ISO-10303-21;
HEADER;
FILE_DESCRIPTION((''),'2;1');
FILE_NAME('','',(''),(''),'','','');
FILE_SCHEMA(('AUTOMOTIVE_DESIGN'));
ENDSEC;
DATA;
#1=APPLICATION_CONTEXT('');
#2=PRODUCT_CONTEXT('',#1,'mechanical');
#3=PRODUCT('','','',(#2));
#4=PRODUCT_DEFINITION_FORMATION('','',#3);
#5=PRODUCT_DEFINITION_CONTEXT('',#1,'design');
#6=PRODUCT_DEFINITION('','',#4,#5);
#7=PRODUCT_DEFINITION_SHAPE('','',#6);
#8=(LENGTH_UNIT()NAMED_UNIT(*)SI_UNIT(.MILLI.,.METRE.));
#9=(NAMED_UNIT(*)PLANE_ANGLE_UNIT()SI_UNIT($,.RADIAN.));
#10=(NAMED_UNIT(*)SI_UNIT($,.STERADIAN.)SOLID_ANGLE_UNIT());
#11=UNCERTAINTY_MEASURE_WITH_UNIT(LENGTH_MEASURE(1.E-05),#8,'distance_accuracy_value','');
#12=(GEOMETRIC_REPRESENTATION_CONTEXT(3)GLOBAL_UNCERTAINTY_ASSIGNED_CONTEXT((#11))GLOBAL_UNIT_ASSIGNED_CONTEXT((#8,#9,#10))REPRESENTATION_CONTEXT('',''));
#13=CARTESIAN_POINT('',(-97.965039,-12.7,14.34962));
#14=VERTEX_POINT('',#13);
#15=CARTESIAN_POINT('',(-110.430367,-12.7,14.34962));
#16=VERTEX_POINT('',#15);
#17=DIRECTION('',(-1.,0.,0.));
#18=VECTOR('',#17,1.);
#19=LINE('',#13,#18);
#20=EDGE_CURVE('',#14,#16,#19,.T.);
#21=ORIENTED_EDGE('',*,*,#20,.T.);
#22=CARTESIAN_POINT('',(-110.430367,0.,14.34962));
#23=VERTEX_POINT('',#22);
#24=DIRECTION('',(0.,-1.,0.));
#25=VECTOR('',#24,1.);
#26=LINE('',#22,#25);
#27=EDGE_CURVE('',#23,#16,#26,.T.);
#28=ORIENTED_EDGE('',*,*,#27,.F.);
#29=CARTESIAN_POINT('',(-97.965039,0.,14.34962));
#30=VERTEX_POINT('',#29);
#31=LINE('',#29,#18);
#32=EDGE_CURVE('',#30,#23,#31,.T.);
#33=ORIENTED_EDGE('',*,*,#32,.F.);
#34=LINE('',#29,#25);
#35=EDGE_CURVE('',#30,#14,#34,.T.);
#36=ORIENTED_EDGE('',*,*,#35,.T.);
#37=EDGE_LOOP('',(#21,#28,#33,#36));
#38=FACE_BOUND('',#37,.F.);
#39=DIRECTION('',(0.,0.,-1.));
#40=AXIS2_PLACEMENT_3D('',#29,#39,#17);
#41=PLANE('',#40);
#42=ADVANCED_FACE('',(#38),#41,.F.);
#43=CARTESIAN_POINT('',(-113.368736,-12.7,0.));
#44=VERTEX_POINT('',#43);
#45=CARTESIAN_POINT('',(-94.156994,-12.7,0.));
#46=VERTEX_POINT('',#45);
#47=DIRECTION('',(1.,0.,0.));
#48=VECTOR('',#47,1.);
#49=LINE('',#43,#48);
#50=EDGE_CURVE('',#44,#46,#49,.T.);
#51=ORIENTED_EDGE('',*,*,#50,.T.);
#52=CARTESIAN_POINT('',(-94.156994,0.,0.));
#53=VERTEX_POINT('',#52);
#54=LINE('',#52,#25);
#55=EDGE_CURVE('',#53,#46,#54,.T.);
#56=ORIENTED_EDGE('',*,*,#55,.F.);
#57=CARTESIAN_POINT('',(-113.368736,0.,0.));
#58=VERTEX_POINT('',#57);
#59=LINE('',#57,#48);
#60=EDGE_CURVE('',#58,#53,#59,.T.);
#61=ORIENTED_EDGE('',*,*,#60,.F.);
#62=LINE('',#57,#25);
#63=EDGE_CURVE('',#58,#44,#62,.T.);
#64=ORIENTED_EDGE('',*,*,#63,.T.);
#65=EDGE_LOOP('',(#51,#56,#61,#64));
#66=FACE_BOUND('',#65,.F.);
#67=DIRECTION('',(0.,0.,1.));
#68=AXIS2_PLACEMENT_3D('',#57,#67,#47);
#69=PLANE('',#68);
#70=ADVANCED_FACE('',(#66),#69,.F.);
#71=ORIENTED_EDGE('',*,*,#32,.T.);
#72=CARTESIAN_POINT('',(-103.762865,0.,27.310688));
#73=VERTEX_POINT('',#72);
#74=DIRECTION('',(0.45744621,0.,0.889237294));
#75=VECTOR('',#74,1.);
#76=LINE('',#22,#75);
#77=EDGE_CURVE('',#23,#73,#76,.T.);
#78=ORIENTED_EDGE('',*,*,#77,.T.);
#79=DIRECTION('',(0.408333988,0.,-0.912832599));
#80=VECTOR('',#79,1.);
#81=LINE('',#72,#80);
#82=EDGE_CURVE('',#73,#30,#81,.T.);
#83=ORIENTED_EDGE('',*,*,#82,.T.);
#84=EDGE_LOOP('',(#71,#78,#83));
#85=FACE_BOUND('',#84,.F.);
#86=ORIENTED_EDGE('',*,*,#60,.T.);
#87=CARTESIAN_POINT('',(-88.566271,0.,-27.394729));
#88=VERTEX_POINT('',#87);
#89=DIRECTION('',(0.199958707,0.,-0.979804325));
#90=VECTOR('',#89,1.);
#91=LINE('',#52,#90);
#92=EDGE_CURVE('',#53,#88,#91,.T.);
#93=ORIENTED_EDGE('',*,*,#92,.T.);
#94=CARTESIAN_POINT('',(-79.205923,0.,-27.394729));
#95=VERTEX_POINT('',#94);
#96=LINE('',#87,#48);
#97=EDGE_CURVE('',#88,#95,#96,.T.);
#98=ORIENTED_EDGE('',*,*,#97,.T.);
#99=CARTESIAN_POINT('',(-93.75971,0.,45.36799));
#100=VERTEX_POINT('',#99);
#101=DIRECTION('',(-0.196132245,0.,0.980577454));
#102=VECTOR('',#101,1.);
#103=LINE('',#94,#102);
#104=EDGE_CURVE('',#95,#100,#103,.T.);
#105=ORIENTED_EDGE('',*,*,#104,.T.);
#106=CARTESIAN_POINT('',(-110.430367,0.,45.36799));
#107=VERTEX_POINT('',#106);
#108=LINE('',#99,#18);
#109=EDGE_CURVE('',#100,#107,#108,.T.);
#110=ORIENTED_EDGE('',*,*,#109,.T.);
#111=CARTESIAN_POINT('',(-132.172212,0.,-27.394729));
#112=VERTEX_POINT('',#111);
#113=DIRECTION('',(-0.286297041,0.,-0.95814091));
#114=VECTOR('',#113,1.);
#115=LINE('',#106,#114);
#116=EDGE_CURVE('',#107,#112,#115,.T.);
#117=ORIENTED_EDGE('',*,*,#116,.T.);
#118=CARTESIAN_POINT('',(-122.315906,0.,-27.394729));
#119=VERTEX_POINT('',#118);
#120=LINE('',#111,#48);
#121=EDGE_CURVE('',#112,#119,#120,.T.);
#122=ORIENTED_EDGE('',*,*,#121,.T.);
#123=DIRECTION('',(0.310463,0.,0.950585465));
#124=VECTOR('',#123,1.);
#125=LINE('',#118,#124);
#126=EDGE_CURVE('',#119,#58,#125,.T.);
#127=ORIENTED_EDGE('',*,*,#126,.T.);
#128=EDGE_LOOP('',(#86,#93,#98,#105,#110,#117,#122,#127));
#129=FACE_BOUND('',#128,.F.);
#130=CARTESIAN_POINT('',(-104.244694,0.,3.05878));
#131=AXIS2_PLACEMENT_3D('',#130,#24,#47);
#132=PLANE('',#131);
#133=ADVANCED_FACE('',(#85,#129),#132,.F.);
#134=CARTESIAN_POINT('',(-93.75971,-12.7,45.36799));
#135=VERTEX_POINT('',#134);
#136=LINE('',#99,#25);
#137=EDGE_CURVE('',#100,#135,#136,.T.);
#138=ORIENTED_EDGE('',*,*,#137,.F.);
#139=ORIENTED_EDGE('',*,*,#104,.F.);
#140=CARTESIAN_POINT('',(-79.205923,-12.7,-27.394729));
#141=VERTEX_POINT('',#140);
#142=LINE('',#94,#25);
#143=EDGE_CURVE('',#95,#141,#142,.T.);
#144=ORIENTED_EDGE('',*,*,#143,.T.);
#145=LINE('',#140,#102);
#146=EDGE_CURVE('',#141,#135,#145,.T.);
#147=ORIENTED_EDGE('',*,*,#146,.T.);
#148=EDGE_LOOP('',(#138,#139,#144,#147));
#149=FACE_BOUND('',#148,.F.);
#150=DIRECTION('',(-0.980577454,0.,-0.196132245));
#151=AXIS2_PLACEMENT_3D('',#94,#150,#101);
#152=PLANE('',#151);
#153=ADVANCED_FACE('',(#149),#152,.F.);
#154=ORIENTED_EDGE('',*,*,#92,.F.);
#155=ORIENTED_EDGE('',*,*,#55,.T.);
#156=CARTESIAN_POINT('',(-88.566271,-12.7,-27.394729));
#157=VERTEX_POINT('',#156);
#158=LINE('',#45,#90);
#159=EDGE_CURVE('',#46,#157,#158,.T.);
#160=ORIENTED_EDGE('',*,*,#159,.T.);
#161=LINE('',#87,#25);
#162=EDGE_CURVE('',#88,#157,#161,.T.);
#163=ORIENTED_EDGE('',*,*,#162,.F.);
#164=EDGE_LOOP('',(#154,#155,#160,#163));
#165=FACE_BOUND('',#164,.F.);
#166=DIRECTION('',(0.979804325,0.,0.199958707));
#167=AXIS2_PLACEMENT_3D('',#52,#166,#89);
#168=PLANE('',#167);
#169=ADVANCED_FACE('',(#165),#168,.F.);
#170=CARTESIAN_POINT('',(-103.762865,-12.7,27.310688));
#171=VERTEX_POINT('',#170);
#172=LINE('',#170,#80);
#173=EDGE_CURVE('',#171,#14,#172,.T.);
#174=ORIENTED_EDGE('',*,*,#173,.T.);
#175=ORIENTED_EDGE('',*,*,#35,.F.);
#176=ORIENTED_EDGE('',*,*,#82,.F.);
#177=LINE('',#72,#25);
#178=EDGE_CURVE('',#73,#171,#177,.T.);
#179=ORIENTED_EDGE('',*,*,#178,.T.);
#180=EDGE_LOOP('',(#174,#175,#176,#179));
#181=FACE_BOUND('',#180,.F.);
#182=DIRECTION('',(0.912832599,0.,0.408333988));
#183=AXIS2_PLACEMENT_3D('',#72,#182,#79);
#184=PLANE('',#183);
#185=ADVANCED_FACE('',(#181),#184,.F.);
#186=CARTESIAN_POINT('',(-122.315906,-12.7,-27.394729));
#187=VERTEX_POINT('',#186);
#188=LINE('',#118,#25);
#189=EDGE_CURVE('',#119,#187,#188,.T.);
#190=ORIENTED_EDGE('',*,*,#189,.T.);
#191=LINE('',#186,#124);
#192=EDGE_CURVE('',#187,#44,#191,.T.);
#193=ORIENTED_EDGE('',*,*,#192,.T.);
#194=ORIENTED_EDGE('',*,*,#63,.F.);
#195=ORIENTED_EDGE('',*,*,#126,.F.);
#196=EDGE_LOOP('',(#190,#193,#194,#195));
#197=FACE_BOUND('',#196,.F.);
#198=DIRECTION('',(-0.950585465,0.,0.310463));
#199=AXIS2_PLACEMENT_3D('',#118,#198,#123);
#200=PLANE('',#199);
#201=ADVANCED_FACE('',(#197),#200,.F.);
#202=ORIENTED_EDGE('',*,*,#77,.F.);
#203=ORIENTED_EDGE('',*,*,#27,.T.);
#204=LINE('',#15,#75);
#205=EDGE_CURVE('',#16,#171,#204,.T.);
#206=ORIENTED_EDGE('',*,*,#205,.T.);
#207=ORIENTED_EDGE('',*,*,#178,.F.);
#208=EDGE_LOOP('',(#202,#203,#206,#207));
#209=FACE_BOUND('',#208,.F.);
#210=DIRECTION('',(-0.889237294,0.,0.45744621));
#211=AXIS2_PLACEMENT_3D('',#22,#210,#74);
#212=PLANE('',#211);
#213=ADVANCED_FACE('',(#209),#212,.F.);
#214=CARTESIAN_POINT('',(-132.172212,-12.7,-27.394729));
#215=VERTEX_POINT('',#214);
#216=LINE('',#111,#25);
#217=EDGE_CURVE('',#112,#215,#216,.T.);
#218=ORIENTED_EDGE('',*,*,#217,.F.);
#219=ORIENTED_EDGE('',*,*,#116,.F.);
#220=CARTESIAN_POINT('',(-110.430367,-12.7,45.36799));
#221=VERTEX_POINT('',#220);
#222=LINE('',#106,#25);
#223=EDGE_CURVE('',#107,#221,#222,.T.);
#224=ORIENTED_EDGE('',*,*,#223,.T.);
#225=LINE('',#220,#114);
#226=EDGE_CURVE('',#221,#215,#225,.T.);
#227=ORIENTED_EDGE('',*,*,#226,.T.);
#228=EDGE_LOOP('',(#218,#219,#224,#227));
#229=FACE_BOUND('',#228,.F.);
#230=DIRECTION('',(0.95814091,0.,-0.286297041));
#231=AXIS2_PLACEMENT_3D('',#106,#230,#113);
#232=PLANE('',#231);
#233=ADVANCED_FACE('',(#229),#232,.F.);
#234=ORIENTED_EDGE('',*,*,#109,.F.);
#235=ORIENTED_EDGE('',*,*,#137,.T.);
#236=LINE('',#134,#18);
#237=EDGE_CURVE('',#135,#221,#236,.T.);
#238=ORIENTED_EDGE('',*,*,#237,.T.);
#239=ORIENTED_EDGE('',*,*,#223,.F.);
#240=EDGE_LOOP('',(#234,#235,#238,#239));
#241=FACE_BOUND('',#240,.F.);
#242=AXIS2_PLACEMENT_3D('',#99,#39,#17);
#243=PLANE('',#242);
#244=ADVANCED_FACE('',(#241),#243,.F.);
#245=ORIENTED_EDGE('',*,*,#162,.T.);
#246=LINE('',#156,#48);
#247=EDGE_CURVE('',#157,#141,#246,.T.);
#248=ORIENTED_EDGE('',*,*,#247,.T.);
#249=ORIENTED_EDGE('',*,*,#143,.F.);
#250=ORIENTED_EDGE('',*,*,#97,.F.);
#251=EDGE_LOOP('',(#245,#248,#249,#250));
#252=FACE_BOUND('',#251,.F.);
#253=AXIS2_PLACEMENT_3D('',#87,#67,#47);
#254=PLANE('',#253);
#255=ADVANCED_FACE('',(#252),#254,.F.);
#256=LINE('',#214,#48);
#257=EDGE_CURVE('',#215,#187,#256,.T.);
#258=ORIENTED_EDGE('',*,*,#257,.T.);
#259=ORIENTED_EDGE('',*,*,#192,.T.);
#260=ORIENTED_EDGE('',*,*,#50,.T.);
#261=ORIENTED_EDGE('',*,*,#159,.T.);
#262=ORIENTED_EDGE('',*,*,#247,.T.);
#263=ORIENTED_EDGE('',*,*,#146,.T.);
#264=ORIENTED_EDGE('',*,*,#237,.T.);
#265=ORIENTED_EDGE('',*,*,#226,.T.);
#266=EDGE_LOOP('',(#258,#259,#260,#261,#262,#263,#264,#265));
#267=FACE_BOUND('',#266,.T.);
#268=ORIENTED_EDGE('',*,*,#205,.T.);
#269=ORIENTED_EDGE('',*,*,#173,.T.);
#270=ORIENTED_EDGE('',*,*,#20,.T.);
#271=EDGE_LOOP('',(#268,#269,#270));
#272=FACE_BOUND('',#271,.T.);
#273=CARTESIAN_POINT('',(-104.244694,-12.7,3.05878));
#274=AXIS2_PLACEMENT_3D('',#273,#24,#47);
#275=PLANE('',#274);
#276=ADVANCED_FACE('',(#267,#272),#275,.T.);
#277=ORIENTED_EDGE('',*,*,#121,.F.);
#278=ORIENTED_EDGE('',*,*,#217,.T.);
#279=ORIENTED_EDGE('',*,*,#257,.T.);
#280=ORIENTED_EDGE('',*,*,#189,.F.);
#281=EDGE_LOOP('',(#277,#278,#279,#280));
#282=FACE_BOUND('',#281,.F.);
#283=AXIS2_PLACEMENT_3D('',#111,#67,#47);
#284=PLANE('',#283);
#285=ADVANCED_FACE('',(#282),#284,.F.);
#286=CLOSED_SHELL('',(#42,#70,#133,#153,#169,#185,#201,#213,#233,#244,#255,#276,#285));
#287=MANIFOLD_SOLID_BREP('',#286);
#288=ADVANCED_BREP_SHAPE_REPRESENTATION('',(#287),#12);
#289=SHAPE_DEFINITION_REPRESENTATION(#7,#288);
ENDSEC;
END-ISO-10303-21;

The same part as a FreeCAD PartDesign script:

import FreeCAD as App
import Part
import Sketcher

V = App.Vector
Q = App.Units.Quantity


def add_polygon(sketch, points):
    """Adds a closed chain of lines whose ends are joined by coincident constraints."""
    first, n = sketch.GeometryCount, len(points)
    for a, b in zip(points, points[1:] + points[:1]):
        sketch.addGeometry(Part.LineSegment(App.Vector(*a, 0), App.Vector(*b, 0)), False)
    for i in range(n):
        sketch.addConstraint(Sketcher.Constraint("Coincident", first + i, 2, first + (i + 1) % n, 1))

doc = App.newDocument("Part")
body = doc.addObject("PartDesign::Body", "Body")

sketch1 = body.newObject("Sketcher::SketchObject", "Sketch")
sketch1.AttachmentSupport = (doc.getObject("XZ_Plane"), [""])
sketch1.MapMode = "FlatFace"
add_polygon(sketch1, [(-110, 45), (-132, -27), (-122, -27), (-113, 0), (-94, 0), (-89, -27), (-79, -27), (-94, 45)])
add_polygon(sketch1, [(-98, 14), (-110, 14), (-104, 27)])
sketch1.addConstraint([
    Sketcher.Constraint("Horizontal", 1),
    Sketcher.Constraint("Horizontal", 3),
    Sketcher.Constraint("Horizontal", 5),
    Sketcher.Constraint("Horizontal", 7),
    Sketcher.Constraint("Horizontal", 8),
    Sketcher.Constraint("PointOnObject", 2, 2, -1),
    Sketcher.Constraint("Horizontal", 1, 2, 4, 2),
    Sketcher.Constraint("Vertical", 7, 2, 8, 2),
    Sketcher.Constraint("DistanceX", 8, 2, 9, 2, Q("0.2625001 in")),
    Sketcher.Constraint("DistanceX", 5, 1, 5, 2, 9.360348),
    Sketcher.Constraint("DistanceY", 9, 2, 7, 2, 18.057302),
    Sketcher.Constraint("Distance", 6, 74.203949),
    Sketcher.Constraint("Distance", 9, 14.575489),
    Sketcher.Constraint("DistanceX", 1, 1, 1, 2, 9.856306),
    Sketcher.Constraint("DistanceX", 3, 1, 3, 2, 19.211742),
    Sketcher.Constraint("DistanceX", 7, 2, 7, 1, 16.670657),
    Sketcher.Constraint("DistanceX", 8, 2, 8, 1, 12.465328),
    Sketcher.Constraint("DistanceX", 0, 2, -1, 1, 132.172212),
    Sketcher.Constraint("DistanceY", 0, 2, -1, 1, 27.394729),
    Sketcher.Constraint("DistanceX", 4, 2, -1, 1, 88.566271),
    Sketcher.Constraint("DistanceX", 6, 2, -1, 1, 93.75971),
    Sketcher.Constraint("DistanceX", 1, 2, 2, 2, 8.94717),
])
pad1 = body.newObject("PartDesign::Pad", "Pad")
pad1.Profile = sketch1
pad1.Length = Q("0.5 in")

doc.recompute()
